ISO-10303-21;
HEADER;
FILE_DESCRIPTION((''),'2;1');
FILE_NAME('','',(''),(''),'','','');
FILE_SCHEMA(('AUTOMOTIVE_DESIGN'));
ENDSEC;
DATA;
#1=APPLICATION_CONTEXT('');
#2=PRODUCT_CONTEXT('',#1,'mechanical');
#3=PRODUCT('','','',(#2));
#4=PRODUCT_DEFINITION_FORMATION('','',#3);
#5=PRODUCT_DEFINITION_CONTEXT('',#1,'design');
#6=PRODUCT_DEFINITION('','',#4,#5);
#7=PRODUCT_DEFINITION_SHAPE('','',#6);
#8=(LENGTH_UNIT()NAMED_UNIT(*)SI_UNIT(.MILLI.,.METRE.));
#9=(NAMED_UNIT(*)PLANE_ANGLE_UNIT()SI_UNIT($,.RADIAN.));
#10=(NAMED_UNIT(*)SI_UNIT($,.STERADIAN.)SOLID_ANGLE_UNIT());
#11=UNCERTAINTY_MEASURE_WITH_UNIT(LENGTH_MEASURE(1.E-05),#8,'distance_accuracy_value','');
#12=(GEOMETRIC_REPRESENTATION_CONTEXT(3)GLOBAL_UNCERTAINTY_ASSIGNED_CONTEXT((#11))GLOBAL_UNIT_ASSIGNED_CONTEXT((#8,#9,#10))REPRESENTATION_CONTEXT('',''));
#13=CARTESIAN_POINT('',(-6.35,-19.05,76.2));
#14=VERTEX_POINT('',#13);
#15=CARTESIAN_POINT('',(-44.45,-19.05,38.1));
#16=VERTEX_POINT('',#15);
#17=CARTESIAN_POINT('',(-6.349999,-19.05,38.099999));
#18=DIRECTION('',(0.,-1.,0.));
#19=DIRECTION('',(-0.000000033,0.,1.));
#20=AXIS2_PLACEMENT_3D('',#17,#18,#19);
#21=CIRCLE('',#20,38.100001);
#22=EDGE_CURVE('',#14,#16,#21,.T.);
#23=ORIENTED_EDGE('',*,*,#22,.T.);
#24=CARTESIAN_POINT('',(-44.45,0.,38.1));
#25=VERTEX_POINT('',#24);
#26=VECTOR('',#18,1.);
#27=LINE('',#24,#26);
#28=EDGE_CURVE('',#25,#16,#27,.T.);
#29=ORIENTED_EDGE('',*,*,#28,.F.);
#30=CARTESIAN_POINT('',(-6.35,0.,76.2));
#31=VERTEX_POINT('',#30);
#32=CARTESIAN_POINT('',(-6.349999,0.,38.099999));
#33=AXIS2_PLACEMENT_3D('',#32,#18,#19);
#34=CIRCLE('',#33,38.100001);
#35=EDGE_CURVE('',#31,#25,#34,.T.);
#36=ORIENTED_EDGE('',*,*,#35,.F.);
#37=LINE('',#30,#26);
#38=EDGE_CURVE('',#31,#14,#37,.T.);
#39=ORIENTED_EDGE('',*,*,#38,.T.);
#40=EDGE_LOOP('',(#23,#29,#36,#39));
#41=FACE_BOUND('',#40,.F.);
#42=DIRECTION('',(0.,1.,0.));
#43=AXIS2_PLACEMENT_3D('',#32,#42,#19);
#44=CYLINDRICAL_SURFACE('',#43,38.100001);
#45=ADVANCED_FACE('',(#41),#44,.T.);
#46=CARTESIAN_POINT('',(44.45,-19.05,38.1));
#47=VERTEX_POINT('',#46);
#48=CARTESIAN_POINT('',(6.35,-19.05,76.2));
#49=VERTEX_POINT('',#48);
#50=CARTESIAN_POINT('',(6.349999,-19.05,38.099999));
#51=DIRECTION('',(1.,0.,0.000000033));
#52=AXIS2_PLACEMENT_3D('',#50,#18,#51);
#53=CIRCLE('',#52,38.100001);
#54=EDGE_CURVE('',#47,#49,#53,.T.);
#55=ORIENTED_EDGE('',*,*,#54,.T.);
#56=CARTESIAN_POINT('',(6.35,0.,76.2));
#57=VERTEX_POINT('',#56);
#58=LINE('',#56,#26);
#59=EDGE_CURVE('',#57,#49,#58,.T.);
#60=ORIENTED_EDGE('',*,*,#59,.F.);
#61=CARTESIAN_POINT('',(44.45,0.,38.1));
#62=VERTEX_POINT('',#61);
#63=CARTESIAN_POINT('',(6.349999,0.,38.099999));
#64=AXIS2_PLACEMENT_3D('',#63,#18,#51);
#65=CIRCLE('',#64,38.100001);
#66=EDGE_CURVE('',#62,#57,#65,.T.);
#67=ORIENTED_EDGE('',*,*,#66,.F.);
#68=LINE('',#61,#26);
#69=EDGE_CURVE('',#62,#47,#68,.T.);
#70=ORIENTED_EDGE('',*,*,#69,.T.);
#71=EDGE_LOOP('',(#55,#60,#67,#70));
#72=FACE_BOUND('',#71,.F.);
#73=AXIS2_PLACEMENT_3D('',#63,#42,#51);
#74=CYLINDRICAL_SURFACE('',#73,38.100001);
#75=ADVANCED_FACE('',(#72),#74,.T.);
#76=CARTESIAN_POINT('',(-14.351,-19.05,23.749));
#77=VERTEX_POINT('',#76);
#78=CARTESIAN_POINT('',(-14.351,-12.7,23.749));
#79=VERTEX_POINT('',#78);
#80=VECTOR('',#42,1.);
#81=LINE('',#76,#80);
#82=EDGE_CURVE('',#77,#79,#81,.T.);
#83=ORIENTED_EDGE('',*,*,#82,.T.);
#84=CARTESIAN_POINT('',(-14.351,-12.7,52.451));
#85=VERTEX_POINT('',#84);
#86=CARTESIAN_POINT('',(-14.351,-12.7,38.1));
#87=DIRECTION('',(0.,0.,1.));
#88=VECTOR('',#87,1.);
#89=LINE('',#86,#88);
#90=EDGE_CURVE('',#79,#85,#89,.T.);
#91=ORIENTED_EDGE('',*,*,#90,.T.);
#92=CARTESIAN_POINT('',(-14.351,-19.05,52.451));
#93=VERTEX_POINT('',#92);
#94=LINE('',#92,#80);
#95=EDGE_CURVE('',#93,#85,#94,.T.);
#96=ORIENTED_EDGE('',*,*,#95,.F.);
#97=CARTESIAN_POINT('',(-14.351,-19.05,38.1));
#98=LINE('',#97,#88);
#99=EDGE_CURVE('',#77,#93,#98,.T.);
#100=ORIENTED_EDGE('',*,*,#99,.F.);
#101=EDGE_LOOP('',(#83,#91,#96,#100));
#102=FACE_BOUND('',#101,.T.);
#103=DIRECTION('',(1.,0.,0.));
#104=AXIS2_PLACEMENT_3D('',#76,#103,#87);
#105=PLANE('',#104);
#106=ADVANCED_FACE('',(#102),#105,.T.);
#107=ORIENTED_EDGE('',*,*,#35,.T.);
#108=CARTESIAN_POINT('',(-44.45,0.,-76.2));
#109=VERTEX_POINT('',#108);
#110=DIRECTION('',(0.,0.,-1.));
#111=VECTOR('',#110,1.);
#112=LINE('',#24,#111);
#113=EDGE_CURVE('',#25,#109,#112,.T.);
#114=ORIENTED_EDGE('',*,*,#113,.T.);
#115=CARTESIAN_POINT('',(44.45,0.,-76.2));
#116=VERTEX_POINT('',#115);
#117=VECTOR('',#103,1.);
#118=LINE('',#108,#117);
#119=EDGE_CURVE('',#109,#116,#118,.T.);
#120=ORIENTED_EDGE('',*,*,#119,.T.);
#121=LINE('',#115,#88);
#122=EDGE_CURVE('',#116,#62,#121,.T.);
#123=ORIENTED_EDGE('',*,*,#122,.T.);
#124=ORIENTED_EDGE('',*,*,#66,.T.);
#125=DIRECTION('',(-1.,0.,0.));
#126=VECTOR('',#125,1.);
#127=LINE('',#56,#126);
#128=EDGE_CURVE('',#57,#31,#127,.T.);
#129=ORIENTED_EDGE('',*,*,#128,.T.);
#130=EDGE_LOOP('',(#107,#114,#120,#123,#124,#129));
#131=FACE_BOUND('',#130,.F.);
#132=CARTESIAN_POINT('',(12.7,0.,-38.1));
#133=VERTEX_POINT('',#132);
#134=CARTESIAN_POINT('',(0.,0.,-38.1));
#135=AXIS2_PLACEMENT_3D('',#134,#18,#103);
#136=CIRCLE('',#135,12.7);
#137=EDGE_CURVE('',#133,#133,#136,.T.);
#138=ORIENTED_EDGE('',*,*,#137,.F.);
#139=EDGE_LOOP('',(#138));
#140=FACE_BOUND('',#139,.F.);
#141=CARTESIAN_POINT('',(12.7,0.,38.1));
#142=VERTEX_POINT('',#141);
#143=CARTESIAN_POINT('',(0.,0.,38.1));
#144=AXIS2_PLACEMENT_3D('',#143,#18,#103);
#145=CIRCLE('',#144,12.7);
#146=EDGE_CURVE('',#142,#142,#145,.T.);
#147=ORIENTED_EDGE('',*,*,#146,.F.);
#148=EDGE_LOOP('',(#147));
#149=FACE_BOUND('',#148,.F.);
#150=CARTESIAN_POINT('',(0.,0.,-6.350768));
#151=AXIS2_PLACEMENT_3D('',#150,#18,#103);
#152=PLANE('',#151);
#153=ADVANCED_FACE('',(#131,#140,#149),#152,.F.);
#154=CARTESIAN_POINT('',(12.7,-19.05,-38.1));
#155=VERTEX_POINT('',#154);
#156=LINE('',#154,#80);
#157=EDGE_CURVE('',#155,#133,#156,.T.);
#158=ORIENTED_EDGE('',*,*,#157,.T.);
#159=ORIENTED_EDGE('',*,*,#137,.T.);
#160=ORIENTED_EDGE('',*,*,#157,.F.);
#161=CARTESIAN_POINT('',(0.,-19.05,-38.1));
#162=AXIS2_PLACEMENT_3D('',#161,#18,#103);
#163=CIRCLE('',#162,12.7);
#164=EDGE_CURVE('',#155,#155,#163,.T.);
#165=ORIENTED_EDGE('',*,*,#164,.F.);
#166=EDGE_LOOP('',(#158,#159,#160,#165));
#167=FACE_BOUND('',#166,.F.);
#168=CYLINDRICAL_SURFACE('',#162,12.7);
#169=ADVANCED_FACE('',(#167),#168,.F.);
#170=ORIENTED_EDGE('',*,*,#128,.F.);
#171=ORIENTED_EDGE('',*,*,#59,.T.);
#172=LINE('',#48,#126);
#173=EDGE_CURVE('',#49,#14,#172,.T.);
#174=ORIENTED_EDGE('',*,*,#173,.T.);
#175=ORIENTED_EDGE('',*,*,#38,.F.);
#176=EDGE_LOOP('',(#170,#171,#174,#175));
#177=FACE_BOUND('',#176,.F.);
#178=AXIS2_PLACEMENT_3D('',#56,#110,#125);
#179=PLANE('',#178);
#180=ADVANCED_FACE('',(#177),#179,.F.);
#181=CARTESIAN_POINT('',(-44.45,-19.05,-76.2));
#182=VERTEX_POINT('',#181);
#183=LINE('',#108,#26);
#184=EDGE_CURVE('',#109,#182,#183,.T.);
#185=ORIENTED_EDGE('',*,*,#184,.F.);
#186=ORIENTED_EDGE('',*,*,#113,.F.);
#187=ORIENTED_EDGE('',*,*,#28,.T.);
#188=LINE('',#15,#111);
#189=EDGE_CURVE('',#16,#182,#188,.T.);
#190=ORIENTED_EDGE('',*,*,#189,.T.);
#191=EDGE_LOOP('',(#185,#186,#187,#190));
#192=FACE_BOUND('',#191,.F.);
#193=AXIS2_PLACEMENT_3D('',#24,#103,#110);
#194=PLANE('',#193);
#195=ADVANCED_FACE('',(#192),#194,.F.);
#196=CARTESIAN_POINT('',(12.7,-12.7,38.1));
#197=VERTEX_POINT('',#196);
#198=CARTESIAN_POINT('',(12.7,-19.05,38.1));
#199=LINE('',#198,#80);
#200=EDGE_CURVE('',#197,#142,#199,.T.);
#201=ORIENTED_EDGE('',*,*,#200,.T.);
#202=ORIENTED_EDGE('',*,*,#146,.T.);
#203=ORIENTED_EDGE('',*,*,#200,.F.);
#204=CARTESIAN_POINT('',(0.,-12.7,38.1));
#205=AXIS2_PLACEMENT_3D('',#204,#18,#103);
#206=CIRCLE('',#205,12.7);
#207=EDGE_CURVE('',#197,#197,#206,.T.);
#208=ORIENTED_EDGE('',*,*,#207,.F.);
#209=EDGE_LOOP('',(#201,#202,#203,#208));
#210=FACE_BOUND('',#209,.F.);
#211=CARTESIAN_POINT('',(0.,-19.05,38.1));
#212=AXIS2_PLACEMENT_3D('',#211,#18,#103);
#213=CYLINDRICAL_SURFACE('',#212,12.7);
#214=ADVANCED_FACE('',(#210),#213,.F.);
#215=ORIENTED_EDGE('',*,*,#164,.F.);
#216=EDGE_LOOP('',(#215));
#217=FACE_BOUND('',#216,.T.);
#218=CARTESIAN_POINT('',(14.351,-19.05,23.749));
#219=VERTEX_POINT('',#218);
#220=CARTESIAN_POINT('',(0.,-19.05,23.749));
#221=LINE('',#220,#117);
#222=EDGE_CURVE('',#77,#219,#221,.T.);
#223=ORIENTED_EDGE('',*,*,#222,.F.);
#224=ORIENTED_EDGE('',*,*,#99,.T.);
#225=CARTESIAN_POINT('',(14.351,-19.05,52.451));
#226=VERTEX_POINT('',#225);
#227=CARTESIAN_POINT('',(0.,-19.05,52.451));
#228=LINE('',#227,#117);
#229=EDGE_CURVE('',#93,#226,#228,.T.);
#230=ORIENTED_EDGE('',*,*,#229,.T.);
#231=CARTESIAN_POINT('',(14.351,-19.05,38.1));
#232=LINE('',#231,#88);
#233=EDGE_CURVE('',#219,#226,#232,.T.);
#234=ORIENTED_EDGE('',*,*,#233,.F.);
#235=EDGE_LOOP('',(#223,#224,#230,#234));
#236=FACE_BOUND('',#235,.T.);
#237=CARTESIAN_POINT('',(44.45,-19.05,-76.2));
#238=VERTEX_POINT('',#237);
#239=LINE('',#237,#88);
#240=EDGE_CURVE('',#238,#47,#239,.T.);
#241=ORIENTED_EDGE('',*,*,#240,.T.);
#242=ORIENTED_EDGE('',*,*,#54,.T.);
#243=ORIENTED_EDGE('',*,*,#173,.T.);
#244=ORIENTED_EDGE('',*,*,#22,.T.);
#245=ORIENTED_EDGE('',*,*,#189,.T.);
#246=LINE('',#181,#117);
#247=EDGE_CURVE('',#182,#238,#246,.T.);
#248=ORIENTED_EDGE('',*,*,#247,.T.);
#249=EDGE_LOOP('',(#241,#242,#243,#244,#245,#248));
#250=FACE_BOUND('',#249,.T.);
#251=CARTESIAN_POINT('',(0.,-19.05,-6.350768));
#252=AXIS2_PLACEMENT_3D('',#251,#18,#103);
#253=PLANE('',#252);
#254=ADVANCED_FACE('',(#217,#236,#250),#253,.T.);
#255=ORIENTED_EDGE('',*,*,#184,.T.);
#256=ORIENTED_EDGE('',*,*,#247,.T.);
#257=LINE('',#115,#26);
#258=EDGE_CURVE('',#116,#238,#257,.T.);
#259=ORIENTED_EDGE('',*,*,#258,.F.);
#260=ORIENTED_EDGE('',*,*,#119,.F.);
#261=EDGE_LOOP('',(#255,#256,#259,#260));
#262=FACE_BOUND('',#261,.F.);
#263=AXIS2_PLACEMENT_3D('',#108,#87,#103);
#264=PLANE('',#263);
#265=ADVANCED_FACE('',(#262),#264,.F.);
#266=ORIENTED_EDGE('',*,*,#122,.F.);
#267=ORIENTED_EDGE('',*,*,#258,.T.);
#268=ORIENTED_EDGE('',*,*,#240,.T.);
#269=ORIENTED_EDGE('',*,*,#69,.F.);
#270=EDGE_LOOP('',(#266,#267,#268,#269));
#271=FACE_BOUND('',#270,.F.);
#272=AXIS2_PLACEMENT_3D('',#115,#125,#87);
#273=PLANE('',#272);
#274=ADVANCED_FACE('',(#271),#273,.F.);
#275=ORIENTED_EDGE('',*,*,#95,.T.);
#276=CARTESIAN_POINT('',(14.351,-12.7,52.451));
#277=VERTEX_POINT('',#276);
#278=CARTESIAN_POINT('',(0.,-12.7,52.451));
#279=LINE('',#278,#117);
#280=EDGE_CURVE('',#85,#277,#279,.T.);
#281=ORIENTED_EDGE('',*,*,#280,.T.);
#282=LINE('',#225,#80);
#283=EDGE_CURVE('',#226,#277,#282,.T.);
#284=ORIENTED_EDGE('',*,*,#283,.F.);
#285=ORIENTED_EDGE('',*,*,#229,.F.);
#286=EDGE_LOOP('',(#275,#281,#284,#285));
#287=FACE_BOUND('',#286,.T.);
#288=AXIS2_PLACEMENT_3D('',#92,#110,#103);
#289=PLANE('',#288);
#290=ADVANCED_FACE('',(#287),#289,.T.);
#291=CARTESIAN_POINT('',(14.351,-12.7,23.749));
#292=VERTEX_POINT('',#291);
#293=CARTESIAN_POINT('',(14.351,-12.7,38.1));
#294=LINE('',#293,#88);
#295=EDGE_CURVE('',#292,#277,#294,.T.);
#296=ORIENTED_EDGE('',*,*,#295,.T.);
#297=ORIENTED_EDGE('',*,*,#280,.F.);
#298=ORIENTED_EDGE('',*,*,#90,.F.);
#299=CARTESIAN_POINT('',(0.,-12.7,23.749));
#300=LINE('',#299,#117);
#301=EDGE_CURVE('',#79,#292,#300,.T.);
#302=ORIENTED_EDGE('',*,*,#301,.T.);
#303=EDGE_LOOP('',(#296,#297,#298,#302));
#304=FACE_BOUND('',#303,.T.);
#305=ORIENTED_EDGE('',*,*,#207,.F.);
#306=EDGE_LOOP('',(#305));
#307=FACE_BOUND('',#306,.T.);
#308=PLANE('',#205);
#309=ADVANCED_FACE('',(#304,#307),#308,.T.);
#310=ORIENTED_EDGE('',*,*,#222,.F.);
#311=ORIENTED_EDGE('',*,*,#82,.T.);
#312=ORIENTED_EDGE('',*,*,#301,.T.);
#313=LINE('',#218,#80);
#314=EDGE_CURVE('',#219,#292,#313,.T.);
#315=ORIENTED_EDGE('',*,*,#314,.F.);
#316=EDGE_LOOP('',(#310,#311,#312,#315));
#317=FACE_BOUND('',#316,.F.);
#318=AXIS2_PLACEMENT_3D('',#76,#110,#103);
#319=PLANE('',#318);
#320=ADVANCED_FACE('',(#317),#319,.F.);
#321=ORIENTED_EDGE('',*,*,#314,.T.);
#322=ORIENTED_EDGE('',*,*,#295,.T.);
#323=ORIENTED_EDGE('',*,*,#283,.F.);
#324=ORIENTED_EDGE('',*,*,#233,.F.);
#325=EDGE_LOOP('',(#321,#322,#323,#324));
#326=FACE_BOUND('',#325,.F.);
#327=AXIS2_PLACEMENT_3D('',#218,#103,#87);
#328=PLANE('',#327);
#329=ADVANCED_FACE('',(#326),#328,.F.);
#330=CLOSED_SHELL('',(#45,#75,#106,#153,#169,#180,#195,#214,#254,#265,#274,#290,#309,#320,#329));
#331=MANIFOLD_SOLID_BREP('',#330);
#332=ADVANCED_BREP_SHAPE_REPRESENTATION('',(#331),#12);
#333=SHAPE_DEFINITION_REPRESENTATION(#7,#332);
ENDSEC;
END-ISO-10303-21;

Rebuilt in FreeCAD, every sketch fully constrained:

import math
import FreeCAD as App
import Part
import Sketcher

V = App.Vector
Q = App.Units.Quantity


def add_polygon(sketch, points):
    """Adds a closed chain of lines whose ends are joined by coincident constraints."""
    first, n = sketch.GeometryCount, len(points)
    for a, b in zip(points, points[1:] + points[:1]):
        sketch.addGeometry(Part.LineSegment(App.Vector(*a, 0), App.Vector(*b, 0)), False)
    for i in range(n):
        sketch.addConstraint(Sketcher.Constraint("Coincident", first + i, 2, first + (i + 1) % n, 1))

doc = App.newDocument("Part")
body = doc.addObject("PartDesign::Body", "Body")

# Sketch on XZ plane
sketch1 = body.newObject("Sketcher::SketchObject", "Sketch")
sketch1.AttachmentSupport = (doc.getObject("XZ_Plane"), [""])
sketch1.MapMode = "FlatFace"
sketch1.addGeometry([
    Part.LineSegment(V(-44, 38, 0), V(-44, -76, 0)),  # 0
    Part.LineSegment(V(-44, -76, 0), V(44, -76, 0)),  # 1
    Part.LineSegment(V(44, -76, 0), V(44, 38, 0)),  # 2
    Part.ArcOfCircle(Part.Circle(V(6, 38, 0), V(0, 0, 1), 38), math.radians(0), math.radians(90)),  # 3
    Part.LineSegment(V(6, 76, 0), V(-6, 76, 0)),  # 4
    Part.ArcOfCircle(Part.Circle(V(-6, 38, 0), V(0, 0, 1), 38), math.radians(90), math.radians(180)),  # 5
], False)
sketch1.addConstraint([
    Sketcher.Constraint("Coincident", 0, 2, 1, 1),
    Sketcher.Constraint("Coincident", 1, 2, 2, 1),
    Sketcher.Constraint("Tangent", 2, 2, 3, 1),
    Sketcher.Constraint("Tangent", 3, 2, 4, 1),
    Sketcher.Constraint("Tangent", 4, 2, 5, 1),
    Sketcher.Constraint("Tangent", 5, 2, 0, 1),
    Sketcher.Constraint("Vertical", 0),
    Sketcher.Constraint("Horizontal", 1),
    Sketcher.Constraint("Vertical", 2),
    Sketcher.Constraint("Horizontal", 4),
    Sketcher.Constraint("Equal", 3, 5),
    Sketcher.Constraint("Radius", 3, Q("1.5 in")),
    Sketcher.Constraint("DistanceX", 1, 1, 1, 2, Q("3.5 in")),
    Sketcher.Constraint("DistanceY", 0, 2, 0, 1, Q("4.5 in")),
    Sketcher.Constraint("DistanceY", 0, 2, -1, 1, Q("3 in")),
    Sketcher.Constraint("DistanceX", -1, 1, 3, 3, Q("0.25 in")),
])
pad1 = body.newObject("PartDesign::Pad", "Pad")
pad1.Profile = sketch1
pad1.Length = Q("0.75 in")

# Sketch on XZ plane
sketch2 = body.newObject("Sketcher::SketchObject", "Sketch001")
sketch2.AttachmentSupport = (doc.getObject("XZ_Plane"), [""])
sketch2.MapMode = "FlatFace"
sketch2.AttachmentOffset = App.Placement(V(0, 0, 0.75 * 25.4), App.Rotation())
sketch2.addGeometry([
    Part.Circle(V(0, -38, 0), V(0, 0, 1), 13),
    Part.Circle(V(0, 38, 0), V(0, 0, 1), 13),
], False)
sketch2.addConstraint([
    Sketcher.Constraint("Equal", 0, 1),
    Sketcher.Constraint("Symmetric", 0, 3, 1, 3, -1, 1),
    Sketcher.Constraint("PointOnObject", 0, 3, -2),
    Sketcher.Constraint("Diameter", 0, Q("1 in")),
    Sketcher.Constraint("DistanceY", 0, 3, 1, 3, Q("3 in")),
])
pocket1 = body.newObject("PartDesign::Pocket", "Pocket")
pocket1.Profile = sketch2
pocket1.Type = "ThroughAll"

# Sketch on XZ plane
sketch3 = body.newObject("Sketcher::SketchObject", "Sketch002")
sketch3.AttachmentSupport = (doc.getObject("XZ_Plane"), [""])
sketch3.MapMode = "FlatFace"
sketch3.AttachmentOffset = App.Placement(V(0, 0, 0.75 * 25.4), App.Rotation())
add_polygon(sketch3, [(-14, 52), (-14, 24), (14, 24), (14, 52)])  # lines 0-3
sketch3.addGeometry(Part.Circle(V(0, 38, 0), V(0, 0, 1), 13), False)  # 4
sketch3.addConstraint([
    Sketcher.Constraint("Vertical", 0),
    Sketcher.Constraint("Horizontal", 1),
    Sketcher.Constraint("Vertical", 2),
    Sketcher.Constraint("Horizontal", 3),
    Sketcher.Constraint("PointOnObject", 4, 3, -2),
    Sketcher.Constraint("Equal", 3, 0),
    Sketcher.Constraint("Diameter", 4, Q("1 in")),
    Sketcher.Constraint("DistanceX", 1, 1, 1, 2, Q("1.13 in")),
    Sketcher.Constraint("DistanceY", -1, 1, 4, 3, Q("1.5 in")),
    Sketcher.Constraint("DistanceX", 0, 2, -1, 1, Q("0.565 in")),
    Sketcher.Constraint("DistanceY", -1, 1, 0, 2, Q("0.935 in")),
])
pocket2 = body.newObject("PartDesign::Pocket", "Pocket001")
pocket2.Profile = sketch3
pocket2.Length = Q("0.25 in")

doc.recompute()
